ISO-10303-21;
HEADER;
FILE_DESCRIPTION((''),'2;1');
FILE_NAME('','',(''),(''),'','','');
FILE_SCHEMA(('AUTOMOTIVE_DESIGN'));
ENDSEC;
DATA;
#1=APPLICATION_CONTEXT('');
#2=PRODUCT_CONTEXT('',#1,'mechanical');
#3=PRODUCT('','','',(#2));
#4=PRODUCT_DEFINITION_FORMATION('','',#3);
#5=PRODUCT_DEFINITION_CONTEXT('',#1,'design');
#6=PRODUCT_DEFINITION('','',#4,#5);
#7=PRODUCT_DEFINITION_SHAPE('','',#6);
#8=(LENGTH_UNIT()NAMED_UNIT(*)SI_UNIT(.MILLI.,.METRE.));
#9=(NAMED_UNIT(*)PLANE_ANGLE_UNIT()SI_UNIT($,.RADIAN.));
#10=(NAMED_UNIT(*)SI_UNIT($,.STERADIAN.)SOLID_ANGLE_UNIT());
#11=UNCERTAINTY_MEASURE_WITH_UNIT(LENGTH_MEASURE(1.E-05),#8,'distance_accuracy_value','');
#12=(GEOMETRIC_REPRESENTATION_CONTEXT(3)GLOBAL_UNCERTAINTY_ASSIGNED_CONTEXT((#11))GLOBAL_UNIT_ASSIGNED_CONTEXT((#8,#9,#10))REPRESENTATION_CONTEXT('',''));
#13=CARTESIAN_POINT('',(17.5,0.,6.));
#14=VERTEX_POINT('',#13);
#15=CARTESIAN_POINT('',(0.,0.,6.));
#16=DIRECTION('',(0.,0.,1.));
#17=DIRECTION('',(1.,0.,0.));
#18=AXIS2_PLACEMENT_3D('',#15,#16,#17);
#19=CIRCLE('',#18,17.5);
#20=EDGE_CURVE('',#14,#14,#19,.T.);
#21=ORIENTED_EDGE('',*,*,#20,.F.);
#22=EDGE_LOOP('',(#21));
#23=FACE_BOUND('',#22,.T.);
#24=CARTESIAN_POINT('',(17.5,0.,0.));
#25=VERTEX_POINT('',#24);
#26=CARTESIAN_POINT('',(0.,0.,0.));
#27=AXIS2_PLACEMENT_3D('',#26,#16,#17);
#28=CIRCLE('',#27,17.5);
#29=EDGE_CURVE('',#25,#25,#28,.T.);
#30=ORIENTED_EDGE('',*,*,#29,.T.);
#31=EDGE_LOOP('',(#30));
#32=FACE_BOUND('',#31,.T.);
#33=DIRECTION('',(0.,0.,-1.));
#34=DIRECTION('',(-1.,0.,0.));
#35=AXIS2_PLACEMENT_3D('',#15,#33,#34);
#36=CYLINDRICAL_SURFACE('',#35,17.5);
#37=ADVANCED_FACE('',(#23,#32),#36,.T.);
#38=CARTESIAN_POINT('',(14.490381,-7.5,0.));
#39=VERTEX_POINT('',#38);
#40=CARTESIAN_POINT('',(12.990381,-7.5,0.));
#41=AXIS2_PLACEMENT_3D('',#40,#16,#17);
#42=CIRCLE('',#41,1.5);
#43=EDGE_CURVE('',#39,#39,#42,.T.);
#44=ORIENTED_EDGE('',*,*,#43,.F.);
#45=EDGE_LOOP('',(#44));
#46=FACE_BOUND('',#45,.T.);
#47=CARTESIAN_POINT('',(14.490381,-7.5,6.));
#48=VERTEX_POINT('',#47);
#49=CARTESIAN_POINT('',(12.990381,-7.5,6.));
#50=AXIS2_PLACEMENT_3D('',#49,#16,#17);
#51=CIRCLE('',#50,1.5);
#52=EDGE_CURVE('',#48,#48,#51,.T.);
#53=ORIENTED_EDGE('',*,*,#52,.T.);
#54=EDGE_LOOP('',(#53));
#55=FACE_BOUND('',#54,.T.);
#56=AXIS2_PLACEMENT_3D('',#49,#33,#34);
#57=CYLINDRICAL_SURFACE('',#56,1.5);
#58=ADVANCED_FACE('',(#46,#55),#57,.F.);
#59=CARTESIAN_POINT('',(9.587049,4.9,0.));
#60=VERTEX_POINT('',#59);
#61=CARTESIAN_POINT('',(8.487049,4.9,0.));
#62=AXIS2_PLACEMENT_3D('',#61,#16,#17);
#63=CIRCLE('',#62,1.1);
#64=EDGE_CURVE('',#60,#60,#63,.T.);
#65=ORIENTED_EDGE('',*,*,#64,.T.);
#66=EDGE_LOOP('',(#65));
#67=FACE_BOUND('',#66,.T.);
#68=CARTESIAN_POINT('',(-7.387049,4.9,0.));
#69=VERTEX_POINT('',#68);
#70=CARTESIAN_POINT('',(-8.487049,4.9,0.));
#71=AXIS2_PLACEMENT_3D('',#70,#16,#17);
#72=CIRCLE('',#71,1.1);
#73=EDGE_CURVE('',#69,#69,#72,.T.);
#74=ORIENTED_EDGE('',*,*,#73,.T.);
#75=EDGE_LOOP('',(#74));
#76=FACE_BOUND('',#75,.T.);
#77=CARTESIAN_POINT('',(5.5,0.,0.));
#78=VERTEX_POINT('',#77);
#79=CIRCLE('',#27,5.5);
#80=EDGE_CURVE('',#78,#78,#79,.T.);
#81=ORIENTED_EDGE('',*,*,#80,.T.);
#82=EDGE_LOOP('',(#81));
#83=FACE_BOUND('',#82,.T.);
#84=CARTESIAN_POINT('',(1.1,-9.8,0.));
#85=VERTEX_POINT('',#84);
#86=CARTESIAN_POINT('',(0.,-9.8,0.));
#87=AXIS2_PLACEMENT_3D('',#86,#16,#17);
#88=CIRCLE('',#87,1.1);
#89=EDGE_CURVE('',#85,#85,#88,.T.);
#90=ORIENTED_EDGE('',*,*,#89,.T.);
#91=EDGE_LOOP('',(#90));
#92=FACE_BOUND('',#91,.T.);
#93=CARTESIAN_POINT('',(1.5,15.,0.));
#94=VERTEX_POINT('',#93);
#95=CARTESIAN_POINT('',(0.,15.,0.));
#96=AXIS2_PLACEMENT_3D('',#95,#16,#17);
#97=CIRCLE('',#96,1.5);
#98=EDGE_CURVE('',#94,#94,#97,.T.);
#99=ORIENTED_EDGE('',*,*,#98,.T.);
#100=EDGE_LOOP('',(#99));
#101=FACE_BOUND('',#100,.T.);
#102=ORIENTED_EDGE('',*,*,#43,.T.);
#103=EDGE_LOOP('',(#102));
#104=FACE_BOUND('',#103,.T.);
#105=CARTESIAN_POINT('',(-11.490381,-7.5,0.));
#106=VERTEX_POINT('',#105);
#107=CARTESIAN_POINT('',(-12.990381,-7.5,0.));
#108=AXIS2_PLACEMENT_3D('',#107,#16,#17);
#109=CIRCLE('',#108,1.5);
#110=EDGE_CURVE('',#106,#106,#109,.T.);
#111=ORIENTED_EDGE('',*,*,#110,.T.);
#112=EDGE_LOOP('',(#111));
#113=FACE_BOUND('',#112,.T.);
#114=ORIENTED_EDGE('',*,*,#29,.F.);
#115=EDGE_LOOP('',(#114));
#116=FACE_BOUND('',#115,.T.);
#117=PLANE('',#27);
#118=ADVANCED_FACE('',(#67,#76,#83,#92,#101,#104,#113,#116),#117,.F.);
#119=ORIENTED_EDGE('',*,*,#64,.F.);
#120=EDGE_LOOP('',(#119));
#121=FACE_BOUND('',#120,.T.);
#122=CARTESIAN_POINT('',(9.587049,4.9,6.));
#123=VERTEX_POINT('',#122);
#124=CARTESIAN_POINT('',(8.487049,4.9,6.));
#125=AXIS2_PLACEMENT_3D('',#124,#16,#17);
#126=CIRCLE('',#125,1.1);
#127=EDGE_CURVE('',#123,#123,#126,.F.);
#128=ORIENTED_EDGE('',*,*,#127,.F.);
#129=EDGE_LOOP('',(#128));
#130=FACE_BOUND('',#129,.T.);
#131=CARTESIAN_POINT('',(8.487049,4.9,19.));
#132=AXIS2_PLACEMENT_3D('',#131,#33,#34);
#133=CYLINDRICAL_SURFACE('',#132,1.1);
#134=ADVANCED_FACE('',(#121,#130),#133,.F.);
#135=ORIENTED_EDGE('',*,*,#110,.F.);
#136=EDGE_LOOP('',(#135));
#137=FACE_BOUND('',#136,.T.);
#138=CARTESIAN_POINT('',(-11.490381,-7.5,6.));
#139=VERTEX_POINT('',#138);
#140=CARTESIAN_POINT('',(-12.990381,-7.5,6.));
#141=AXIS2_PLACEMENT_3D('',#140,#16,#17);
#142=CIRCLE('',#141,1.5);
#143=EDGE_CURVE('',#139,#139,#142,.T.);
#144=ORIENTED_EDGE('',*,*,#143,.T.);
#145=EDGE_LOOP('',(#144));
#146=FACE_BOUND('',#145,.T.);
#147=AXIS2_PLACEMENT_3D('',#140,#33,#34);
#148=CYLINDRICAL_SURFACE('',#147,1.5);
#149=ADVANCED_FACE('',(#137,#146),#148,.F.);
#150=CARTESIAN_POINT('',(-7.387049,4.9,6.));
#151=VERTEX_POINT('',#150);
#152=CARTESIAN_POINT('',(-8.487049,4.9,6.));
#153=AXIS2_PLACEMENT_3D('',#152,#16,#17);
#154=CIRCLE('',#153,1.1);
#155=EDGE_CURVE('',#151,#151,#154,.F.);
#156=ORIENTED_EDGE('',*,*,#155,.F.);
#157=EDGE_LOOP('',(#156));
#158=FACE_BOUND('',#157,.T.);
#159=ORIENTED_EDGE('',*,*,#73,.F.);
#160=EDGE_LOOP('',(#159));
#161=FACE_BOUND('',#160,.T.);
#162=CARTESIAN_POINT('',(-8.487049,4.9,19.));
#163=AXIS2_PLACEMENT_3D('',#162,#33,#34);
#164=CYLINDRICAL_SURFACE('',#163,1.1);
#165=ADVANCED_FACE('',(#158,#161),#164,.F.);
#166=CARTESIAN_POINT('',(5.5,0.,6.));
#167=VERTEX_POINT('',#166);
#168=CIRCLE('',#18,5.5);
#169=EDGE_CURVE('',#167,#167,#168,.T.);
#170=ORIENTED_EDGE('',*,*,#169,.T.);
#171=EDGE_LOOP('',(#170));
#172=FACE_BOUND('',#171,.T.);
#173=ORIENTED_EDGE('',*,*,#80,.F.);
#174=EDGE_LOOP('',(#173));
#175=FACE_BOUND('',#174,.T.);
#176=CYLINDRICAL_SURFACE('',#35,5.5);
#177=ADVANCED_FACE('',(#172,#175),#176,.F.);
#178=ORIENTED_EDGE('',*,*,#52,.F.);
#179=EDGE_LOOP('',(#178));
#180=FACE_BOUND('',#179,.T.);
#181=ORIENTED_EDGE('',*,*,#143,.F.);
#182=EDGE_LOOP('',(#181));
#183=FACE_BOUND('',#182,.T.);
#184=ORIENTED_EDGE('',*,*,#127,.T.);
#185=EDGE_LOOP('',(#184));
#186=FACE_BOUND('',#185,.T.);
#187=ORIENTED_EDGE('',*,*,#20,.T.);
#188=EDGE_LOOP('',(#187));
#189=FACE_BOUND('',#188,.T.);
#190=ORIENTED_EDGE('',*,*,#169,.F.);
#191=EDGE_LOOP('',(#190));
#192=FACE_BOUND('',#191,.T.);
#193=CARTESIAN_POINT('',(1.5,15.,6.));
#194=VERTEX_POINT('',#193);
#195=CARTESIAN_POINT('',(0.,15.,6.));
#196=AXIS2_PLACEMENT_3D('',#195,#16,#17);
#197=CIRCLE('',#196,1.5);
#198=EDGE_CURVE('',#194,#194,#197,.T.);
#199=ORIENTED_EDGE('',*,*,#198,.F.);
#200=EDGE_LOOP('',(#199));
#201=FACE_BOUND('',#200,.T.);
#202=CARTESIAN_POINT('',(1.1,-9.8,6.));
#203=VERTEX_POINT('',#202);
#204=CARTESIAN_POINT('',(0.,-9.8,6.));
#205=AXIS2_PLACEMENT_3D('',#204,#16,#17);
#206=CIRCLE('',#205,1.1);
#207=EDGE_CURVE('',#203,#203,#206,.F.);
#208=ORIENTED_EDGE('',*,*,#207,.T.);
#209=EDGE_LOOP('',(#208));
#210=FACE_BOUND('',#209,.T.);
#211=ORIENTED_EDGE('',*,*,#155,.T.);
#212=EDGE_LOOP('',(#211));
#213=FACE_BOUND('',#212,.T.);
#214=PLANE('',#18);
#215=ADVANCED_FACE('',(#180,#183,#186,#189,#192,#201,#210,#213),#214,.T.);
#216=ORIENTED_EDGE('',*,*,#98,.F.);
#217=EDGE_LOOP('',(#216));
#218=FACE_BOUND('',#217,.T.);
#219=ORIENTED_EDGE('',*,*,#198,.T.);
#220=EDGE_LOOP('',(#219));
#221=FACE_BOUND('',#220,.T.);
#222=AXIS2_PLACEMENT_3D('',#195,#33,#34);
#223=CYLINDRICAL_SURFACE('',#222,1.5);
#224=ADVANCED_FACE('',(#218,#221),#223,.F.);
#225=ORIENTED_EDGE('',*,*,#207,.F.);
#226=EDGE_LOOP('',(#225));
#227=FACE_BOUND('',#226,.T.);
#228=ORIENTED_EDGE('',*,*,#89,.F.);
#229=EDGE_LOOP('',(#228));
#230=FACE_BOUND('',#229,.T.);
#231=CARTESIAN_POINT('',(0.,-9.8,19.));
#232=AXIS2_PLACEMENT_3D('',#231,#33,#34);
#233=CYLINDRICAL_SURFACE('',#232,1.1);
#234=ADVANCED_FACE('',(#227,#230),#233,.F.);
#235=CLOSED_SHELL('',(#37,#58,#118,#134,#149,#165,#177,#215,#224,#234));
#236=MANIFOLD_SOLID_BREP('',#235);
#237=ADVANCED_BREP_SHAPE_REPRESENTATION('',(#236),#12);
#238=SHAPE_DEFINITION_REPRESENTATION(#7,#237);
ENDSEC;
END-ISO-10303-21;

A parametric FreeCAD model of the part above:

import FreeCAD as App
import Part
import Sketcher

V = App.Vector
Q = App.Units.Quantity

doc = App.newDocument("Part")
params = doc.addObject("Spreadsheet::Sheet", "Params")
for row, (alias, value) in enumerate([
    ("sketch1_diameter", "35 mm"),
    ("sketch1_diameter2", "3 mm"),
    ("sketch1_diameter3", "11 mm"),
    ("pad1_length", "6 mm"),
    ("sketch2_diameter", "2.2 mm"),
    ("pocket1_length", "19 mm"),
], start=1):
    params.set(f"A{row}", alias)
    params.set(f"B{row}", "=" + value)
    params.setAlias(f"B{row}", alias)

body = doc.addObject("PartDesign::Body", "Body")

sketch1 = body.newObject("Sketcher::SketchObject", "Sketch")
sketch1.AttachmentSupport = (doc.getObject("XY_Plane"), [""])
sketch1.MapMode = "FlatFace"
sketch1.addGeometry(Part.Circle(V(0, 0, 0), V(0, 0, 1), 17.5), False)
sketch1.addGeometry(Part.Circle(V(-13, -7.5, 0), V(0, 0, 1), 1.5), False)
sketch1.addGeometry(Part.Circle(V(0, 0, 0), V(0, 0, 1), 5.5), False)
sketch1.addGeometry(Part.Circle(V(13, -7.5, 0), V(0, 0, 1), 1.5), False)
sketch1.addGeometry(Part.Circle(V(0, 15, 0), V(0, 0, 1), 1.5), False)
sketch1.addConstraint(Sketcher.Constraint("Coincident", 0, 3, -1, 1))
sketch1.addConstraint(Sketcher.Constraint("Coincident", 2, 3, -1, 1))
sketch1.addConstraint(Sketcher.Constraint("Equal", 1, 3))
sketch1.addConstraint(Sketcher.Constraint("Equal", 3, 4))
sketch1.addConstraint(Sketcher.Constraint("Symmetric", 1, 3, 3, 3, -2))
sketch1.addConstraint(Sketcher.Constraint("PointOnObject", 4, 3, -2))
sketch1.addConstraint(Sketcher.Constraint("Diameter", 0, Q("35 mm")))
sketch1.addConstraint(Sketcher.Constraint("Diameter", 1, Q("3 mm")))
sketch1.addConstraint(Sketcher.Constraint("Diameter", 2, Q("11 mm")))
sketch1.addConstraint(Sketcher.Constraint("DistanceY", -1, 1, 4, 3, Q("15 mm")))
sketch1.addConstraint(Sketcher.Constraint("DistanceY", 1, 3, -1, 1, Q("7.5 mm")))
sketch1.addConstraint(Sketcher.Constraint("DistanceX", 1, 3, -1, 1, Q("12.990381 mm")))
sketch1.setExpression("Constraints[6]", "Params.sketch1_diameter")
sketch1.setExpression("Constraints[7]", "Params.sketch1_diameter2")
sketch1.setExpression("Constraints[8]", "Params.sketch1_diameter3")
pad1 = body.newObject("PartDesign::Pad", "Pad")
pad1.Profile = sketch1
pad1.setExpression("Length", "Params.pad1_length")

sketch2 = body.newObject("Sketcher::SketchObject", "Sketch001")
sketch2.AttachmentSupport = (doc.getObject("XY_Plane"), [""])
sketch2.MapMode = "FlatFace"
sketch2.addGeometry(Part.Circle(V(-8.5, 4.9, 0), V(0, 0, 1), 1.1), False)
sketch2.addGeometry(Part.Circle(V(8.5, 4.9, 0), V(0, 0, 1), 1.1), False)
sketch2.addGeometry(Part.Circle(V(0, -9.8, 0), V(0, 0, 1), 1.1), False)
sketch2.addConstraint(Sketcher.Constraint("Equal", 0, 1))
sketch2.addConstraint(Sketcher.Constraint("Equal", 1, 2))
sketch2.addConstraint(Sketcher.Constraint("Symmetric", 0, 3, 1, 3, -2))
sketch2.addConstraint(Sketcher.Constraint("PointOnObject", 2, 3, -2))
sketch2.addConstraint(Sketcher.Constraint("Diameter", 0, Q("2.2 mm")))
sketch2.addConstraint(Sketcher.Constraint("DistanceY", -1, 1, 0, 3, Q("4.9 mm")))
sketch2.addConstraint(Sketcher.Constraint("DistanceY", 2, 3, -1, 1, Q("9.8 mm")))
sketch2.addConstraint(Sketcher.Constraint("DistanceX", 0, 3, -1, 1, Q("8.487049 mm")))
sketch2.setExpression("Constraints[4]", "Params.sketch2_diameter")
pocket1 = body.newObject("PartDesign::Pocket", "Pocket")
pocket1.Profile = sketch2
pocket1.setExpression("Length", "Params.pocket1_length")
pocket1.Reversed = True

doc.recompute()
